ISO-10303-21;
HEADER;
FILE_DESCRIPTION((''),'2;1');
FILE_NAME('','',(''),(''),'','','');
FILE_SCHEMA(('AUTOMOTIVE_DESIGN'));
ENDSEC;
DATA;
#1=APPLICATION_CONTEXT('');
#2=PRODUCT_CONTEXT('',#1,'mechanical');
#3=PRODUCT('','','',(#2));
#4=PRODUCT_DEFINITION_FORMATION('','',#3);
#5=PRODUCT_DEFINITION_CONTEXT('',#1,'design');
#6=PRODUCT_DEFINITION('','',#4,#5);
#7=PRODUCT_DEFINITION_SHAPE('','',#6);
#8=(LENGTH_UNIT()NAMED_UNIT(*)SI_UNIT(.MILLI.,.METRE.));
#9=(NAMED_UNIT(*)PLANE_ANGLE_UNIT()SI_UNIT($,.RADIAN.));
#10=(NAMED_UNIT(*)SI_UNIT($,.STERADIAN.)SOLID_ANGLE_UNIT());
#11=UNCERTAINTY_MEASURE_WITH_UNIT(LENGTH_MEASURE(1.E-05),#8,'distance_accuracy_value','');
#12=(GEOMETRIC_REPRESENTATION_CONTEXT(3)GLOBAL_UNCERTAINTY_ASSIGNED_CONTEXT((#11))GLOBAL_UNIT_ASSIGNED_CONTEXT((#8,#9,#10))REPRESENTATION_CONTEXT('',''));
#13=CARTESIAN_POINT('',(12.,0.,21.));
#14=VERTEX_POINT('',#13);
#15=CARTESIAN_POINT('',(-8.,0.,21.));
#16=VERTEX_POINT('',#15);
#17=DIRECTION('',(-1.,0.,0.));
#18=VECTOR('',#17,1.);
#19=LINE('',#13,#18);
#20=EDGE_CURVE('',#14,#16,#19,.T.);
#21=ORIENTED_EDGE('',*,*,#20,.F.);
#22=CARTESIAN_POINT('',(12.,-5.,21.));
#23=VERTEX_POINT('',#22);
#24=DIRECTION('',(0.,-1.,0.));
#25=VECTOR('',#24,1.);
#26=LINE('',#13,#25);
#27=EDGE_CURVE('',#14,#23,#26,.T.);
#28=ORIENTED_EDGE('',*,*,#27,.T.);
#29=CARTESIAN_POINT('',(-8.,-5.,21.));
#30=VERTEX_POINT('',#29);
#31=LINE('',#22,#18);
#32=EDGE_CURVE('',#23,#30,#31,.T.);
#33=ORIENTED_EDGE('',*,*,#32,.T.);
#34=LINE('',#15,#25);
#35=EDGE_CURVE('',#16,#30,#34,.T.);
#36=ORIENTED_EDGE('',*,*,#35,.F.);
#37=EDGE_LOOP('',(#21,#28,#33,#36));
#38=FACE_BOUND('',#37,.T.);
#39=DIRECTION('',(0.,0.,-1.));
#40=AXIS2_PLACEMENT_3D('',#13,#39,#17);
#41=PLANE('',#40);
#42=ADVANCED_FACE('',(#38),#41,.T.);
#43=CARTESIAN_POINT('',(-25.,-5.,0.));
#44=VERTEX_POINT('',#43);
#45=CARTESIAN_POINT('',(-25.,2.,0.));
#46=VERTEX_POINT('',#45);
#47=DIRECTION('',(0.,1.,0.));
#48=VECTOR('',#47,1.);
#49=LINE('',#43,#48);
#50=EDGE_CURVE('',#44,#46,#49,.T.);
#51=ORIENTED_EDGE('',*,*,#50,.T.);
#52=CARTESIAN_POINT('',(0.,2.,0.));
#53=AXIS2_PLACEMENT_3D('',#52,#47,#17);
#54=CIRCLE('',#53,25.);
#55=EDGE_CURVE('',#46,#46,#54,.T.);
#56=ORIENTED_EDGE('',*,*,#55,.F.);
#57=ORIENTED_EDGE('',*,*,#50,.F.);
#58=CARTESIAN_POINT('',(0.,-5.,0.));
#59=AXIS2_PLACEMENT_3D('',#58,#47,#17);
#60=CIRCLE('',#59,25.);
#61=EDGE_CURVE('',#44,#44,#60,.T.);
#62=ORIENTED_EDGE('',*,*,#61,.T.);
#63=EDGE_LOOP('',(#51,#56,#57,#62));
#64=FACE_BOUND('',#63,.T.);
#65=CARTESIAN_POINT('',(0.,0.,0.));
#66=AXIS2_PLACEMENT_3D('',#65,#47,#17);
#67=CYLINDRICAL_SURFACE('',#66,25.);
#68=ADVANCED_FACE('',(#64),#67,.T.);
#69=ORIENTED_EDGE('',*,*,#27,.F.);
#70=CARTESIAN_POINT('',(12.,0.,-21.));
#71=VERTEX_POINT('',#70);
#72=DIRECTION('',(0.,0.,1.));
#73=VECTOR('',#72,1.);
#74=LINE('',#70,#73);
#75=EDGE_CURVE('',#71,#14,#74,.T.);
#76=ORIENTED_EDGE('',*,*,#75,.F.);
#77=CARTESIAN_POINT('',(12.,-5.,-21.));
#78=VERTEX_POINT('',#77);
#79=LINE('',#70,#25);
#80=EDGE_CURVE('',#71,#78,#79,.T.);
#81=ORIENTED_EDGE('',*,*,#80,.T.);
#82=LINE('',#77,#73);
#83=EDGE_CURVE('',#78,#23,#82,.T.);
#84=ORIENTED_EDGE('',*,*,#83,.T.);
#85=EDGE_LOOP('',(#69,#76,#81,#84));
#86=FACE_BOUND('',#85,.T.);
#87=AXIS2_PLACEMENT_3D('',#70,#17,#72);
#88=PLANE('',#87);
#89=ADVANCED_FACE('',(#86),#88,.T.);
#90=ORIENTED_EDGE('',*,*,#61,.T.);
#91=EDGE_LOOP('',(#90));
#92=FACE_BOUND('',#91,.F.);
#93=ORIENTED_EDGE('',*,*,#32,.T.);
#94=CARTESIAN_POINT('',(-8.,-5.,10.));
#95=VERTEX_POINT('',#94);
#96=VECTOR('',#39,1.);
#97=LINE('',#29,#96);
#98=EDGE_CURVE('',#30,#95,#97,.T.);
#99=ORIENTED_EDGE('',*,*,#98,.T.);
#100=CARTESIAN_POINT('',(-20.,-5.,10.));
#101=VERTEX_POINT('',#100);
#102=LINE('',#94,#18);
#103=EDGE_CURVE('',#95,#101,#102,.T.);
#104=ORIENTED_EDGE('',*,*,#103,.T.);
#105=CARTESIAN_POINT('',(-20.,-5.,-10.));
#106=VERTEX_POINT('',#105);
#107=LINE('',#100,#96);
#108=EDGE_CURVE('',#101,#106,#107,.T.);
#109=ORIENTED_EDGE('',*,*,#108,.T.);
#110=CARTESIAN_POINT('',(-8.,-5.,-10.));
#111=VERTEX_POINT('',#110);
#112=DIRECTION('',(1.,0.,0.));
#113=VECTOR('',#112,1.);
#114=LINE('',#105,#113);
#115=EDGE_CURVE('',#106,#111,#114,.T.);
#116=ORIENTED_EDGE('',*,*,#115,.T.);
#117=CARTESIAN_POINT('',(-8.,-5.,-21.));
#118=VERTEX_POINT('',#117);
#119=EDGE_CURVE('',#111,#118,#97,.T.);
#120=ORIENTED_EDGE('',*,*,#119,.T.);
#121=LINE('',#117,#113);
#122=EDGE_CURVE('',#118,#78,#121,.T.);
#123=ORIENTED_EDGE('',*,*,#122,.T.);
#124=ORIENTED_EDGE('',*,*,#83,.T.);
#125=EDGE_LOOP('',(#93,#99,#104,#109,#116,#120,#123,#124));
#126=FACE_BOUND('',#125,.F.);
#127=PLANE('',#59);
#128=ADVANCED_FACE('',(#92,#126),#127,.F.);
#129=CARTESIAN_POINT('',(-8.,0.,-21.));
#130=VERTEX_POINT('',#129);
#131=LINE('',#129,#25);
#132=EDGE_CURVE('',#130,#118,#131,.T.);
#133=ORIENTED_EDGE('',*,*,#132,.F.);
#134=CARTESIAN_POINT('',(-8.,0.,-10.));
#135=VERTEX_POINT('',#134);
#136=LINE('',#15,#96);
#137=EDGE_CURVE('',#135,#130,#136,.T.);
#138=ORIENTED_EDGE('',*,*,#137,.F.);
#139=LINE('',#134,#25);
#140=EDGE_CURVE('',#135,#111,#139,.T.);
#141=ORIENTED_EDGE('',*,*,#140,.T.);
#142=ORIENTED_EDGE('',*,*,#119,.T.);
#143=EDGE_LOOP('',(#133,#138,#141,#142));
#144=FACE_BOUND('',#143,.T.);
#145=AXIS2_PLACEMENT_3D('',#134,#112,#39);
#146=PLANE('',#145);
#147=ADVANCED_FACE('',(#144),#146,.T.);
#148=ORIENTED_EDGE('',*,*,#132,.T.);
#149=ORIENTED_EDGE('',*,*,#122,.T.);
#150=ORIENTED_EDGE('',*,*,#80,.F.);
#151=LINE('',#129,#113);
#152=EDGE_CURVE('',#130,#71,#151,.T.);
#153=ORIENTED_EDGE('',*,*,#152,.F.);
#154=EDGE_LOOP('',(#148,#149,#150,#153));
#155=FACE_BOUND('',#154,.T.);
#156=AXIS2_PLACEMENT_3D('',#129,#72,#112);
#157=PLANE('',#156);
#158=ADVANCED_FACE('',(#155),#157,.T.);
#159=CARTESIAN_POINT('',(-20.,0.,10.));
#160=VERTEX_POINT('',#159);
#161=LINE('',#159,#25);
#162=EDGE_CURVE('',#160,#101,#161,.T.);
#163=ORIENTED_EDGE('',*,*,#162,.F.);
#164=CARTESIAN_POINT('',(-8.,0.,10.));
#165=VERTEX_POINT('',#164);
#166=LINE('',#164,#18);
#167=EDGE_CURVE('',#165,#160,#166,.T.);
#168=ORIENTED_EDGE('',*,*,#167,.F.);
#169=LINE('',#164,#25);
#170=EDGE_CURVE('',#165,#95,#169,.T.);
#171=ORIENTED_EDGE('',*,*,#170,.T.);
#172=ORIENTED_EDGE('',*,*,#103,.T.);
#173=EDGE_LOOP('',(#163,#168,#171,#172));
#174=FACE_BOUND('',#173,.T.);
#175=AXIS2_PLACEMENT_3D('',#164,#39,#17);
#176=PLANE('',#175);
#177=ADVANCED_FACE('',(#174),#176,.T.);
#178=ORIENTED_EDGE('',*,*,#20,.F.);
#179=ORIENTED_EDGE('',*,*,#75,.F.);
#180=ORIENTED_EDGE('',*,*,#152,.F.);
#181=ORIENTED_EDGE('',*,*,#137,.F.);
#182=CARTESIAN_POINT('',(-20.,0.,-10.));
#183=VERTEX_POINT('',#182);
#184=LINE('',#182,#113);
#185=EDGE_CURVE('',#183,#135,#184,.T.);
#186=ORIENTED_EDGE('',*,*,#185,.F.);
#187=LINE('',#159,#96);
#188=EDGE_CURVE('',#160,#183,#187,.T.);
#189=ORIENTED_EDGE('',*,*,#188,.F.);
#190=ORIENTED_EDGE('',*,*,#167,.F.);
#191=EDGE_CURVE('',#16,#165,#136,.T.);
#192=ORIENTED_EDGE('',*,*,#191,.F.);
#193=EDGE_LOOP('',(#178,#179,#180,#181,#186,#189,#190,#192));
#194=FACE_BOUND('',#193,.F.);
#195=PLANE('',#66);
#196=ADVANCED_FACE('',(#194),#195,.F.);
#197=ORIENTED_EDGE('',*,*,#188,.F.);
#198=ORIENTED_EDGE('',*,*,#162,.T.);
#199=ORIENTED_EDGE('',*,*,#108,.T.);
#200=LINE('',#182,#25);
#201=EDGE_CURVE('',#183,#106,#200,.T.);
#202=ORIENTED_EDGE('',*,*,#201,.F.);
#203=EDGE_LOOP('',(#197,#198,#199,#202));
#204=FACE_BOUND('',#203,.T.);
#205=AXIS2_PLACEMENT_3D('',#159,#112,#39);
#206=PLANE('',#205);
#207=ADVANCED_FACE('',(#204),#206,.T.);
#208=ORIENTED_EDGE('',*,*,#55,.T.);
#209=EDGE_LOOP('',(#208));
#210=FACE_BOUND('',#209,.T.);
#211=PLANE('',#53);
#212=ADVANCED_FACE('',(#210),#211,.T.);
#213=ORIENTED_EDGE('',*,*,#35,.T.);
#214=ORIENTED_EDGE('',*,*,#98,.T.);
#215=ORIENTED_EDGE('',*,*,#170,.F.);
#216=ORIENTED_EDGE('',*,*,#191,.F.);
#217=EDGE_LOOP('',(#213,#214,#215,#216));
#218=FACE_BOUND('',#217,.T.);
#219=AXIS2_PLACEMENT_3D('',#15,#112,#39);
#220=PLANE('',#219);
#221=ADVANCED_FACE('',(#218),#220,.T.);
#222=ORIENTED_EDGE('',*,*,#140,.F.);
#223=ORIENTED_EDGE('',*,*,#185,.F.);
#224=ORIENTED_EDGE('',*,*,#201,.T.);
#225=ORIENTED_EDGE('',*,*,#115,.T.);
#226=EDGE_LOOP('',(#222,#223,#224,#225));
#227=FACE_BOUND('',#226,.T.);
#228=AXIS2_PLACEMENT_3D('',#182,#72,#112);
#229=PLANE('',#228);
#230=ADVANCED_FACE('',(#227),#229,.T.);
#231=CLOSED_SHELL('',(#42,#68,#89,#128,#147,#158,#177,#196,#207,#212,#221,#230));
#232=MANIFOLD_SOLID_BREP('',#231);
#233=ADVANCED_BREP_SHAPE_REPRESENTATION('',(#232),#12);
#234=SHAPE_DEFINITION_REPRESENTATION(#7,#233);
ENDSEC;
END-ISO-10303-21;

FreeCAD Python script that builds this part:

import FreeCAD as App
import Part
import Sketcher

doc = App.newDocument("Part")
body = doc.addObject("PartDesign::Body", "Body")

# Sketch on XZ plane
sketch1 = doc.addObject("Sketcher::SketchObject", "Sketch")
body.addObject(sketch1)
sketch1.AttachmentSupport = (doc.XZ_Plane, [""])
sketch1.MapMode = "FlatFace"
sketch1.addGeometry(Part.Circle(App.Vector(0, 0, 0), App.Vector(0, 0, 1), 25), False)
sketch1.addConstraint([
    Sketcher.Constraint("Coincident", 0, 3, -1, 1),
    Sketcher.Constraint("Diameter", 0, 50.0),
])
pad1 = doc.addObject("PartDesign::Pad", "Pad")
body.addObject(pad1)
pad1.Profile = sketch1
pad1.Length = 2
pad1.Reversed = True

# Sketch on XZ plane
sketch2 = doc.addObject("Sketcher::SketchObject", "Sketch001")
body.addObject(sketch2)
sketch2.AttachmentSupport = (doc.XZ_Plane, [""])
sketch2.MapMode = "FlatFace"
sketch2.addGeometry([
    Part.Circle(App.Vector(0, 0, 0), App.Vector(0, 0, 1), 25),  # 0
    Part.LineSegment(App.Vector(12, 21, 0), App.Vector(-8, 21, 0)),  # 1
    Part.LineSegment(App.Vector(-8, 21, 0), App.Vector(-8, 10, 0)),  # 2
    Part.LineSegment(App.Vector(-8, 10, 0), App.Vector(-20, 10, 0)),  # 3
    Part.LineSegment(App.Vector(-20, 10, 0), App.Vector(-20, -10, 0)),  # 4
    Part.LineSegment(App.Vector(-20, -10, 0), App.Vector(-8, -10, 0)),  # 5
    Part.LineSegment(App.Vector(-8, -10, 0), App.Vector(-8, -21, 0)),  # 6
    Part.LineSegment(App.Vector(-8, -21, 0), App.Vector(12, -21, 0)),  # 7
    Part.LineSegment(App.Vector(12, -21, 0), App.Vector(12, 21, 0)),  # 8
], False)
sketch2.addConstraint([
    Sketcher.Constraint("Coincident", 1, 2, 2, 1),
    Sketcher.Constraint("Coincident", 2, 2, 3, 1),
    Sketcher.Constraint("Coincident", 3, 2, 4, 1),
    Sketcher.Constraint("Coincident", 4, 2, 5, 1),
    Sketcher.Constraint("Coincident", 5, 2, 6, 1),
    Sketcher.Constraint("Coincident", 6, 2, 7, 1),
    Sketcher.Constraint("Coincident", 7, 2, 8, 1),
    Sketcher.Constraint("Coincident", 8, 2, 1, 1),
    Sketcher.Constraint("Horizontal", 1),
    Sketcher.Constraint("Vertical", 2),
    Sketcher.Constraint("Horizontal", 3),
    Sketcher.Constraint("Vertical", 4),
    Sketcher.Constraint("Horizontal", 5),
    Sketcher.Constraint("Vertical", 6),
    Sketcher.Constraint("Horizontal", 7),
    Sketcher.Constraint("Vertical", 8),
    Sketcher.Constraint("Coincident", 0, 3, -1, 1),
    Sketcher.Constraint("Symmetric", 2, 2, 5, 2, -1),
    Sketcher.Constraint("Equal", 7, 4),
    Sketcher.Constraint("Equal", 2, 6),
    Sketcher.Constraint("Diameter", 0, 50.0),
    Sketcher.Constraint("DistanceX", 1, 2, 1, 1, 20.0),
    Sketcher.Constraint("DistanceY", 8, 1, 8, 2, 42.0),
    Sketcher.Constraint("DistanceX", 1, 2, -1, 1, 8.0),
    Sketcher.Constraint("DistanceX", 3, 2, -1, 1, 20.0),
])
pad2 = doc.addObject("PartDesign::Pad", "Pad001")
body.addObject(pad2)
pad2.Profile = sketch2
pad2.Length = 5

doc.recompute()
